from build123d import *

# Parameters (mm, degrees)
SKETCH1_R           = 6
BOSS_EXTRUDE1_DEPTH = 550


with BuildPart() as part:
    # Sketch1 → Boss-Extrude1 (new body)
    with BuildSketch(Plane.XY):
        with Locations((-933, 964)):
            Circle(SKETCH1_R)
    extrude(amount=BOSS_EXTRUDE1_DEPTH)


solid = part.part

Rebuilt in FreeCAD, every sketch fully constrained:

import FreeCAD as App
import Part
import Sketcher
from FreeCAD import Vector

doc = App.newDocument("Part")
body = doc.addObject("PartDesign::Body", "Body")

sketch1 = doc.addObject("Sketcher::SketchObject", "Sketch")
body.addObject(sketch1)
sketch1.AttachmentSupport = (doc.XY_Plane, [""])
sketch1.MapMode = "FlatFace"
sketch1.addGeometry(Part.Circle(Vector(-933, 964, 0), Vector(0, 0, 1), 6), False)
sketch1.addConstraint([
    Sketcher.Constraint("Diameter", 0, 12.0),
    Sketcher.Constraint("DistanceX", 0, 3, -1, 1, 933.0),
    Sketcher.Constraint("DistanceY", -1, 1, 0, 3, 964.0),
])
pad1 = doc.addObject("PartDesign::Pad", "Pad")
body.addObject(pad1)
pad1.Profile = sketch1
pad1.Length = 550

doc.recompute()
